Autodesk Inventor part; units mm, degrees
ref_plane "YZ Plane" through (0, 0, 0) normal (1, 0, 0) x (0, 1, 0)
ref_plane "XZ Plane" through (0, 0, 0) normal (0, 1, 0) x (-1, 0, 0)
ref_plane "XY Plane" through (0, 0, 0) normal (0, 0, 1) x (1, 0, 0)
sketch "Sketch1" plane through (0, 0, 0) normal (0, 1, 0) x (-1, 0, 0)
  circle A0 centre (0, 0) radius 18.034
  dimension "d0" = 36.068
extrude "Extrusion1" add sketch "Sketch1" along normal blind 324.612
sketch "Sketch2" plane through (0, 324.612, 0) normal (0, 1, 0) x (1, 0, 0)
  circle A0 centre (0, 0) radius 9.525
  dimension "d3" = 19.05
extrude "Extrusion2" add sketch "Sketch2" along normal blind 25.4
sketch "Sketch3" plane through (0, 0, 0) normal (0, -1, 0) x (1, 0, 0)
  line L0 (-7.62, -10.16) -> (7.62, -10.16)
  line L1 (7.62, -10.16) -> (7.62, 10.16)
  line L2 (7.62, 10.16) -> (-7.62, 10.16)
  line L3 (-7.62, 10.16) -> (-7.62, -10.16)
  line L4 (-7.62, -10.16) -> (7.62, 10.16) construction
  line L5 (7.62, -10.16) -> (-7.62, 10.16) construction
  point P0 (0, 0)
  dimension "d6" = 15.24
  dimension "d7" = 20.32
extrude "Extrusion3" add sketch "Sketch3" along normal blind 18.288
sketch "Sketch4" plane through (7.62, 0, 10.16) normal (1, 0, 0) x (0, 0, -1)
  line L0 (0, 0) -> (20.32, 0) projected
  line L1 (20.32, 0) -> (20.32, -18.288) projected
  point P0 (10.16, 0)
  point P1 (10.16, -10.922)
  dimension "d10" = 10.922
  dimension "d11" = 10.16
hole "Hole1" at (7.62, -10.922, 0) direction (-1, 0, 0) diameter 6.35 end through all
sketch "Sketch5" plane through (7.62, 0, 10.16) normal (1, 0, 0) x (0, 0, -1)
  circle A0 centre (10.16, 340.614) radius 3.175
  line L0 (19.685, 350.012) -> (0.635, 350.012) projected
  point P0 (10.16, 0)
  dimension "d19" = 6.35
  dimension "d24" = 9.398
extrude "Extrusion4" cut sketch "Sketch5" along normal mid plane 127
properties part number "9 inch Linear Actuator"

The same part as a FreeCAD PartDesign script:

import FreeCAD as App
import Part
import Sketcher

V = App.Vector
Q = App.Units.Quantity


def add_polygon(sketch, points):
    """Adds a closed chain of lines whose ends are joined by coincident constraints."""
    first, n = sketch.GeometryCount, len(points)
    for a, b in zip(points, points[1:] + points[:1]):
        sketch.addGeometry(Part.LineSegment(App.Vector(*a, 0), App.Vector(*b, 0)), False)
    for i in range(n):
        sketch.addConstraint(Sketcher.Constraint("Coincident", first + i, 2, first + (i + 1) % n, 1))

doc = App.newDocument("Part")
params = doc.addObject("Spreadsheet::Sheet", "Params")
for row, (alias, value) in enumerate([
    ("sketch1_diameter", "1.42 in"),
    ("pad1_length", "12.78 in"),
    ("sketch2_diameter", "0.75 in"),
    ("pad2_length", "1 in"),
    ("sketch3_width", "0.6 in"),
    ("sketch3_height", "0.8 in"),
    ("pad3_length", "0.72 in"),
    ("sketch4_diameter", "0.25 in"),
    ("hole_diameter", "0.25 in"),
    ("sketch5_diameter", "0.25 in"),
    ("pocket1_length", "5 in"),
], start=1):
    params.set(f"A{row}", alias)
    params.set(f"B{row}", "=" + value)
    params.setAlias(f"B{row}", alias)

body = doc.addObject("PartDesign::Body", "Body")

sketch1 = body.newObject("Sketcher::SketchObject", "Sketch")
sketch1.AttachmentSupport = (doc.getObject("XZ_Plane"), [""])
sketch1.MapMode = "FlatFace"
sketch1.addGeometry(Part.Circle(V(0, 0, 0), V(0, 0, 1), 18), False)
sketch1.addConstraint(Sketcher.Constraint("Coincident", 0, 3, -1, 1))
sketch1.addConstraint(Sketcher.Constraint("Diameter", 0, Q("1.42 in")))
sketch1.setExpression("Constraints[1]", "Params.sketch1_diameter")
pad1 = body.newObject("PartDesign::Pad", "Pad")
pad1.Profile = sketch1
pad1.setExpression("Length", "Params.pad1_length")
pad1.Reversed = True

sketch2 = body.newObject("Sketcher::SketchObject", "Sketch001")
sketch2.AttachmentSupport = (doc.getObject("XZ_Plane"), [""])
sketch2.MapMode = "FlatFace"
sketch2.AttachmentOffset = App.Placement(V(0, 0, -12.78 * 25.4), App.Rotation())
sketch2.addGeometry(Part.Circle(V(0, 0, 0), V(0, 0, 1), 10), False)
sketch2.addConstraint(Sketcher.Constraint("Coincident", 0, 3, -1, 1))
sketch2.addConstraint(Sketcher.Constraint("Diameter", 0, Q("0.75 in")))
sketch2.setExpression("Constraints[1]", "Params.sketch2_diameter")
pad2 = body.newObject("PartDesign::Pad", "Pad001")
pad2.Profile = sketch2
pad2.setExpression("Length", "Params.pad2_length")
pad2.Reversed = True

sketch3 = body.newObject("Sketcher::SketchObject", "Sketch002")
sketch3.AttachmentSupport = (doc.getObject("XZ_Plane"), [""])
sketch3.MapMode = "FlatFace"
add_polygon(sketch3, [(-8, 10), (-8, -10), (8, -10), (8, 10)])
sketch3.addConstraint(Sketcher.Constraint("Vertical", 0))
sketch3.addConstraint(Sketcher.Constraint("Horizontal", 1))
sketch3.addConstraint(Sketcher.Constraint("Vertical", 2))
sketch3.addConstraint(Sketcher.Constraint("Horizontal", 3))
sketch3.addConstraint(Sketcher.Constraint("Symmetric", 0, 2, 2, 2, -1, 1))
sketch3.addConstraint(Sketcher.Constraint("DistanceX", 1, 1, 1, 2, Q("0.6 in")))
sketch3.addConstraint(Sketcher.Constraint("DistanceY", 0, 2, 0, 1, Q("0.8 in")))
sketch3.setExpression("Constraints[9]", "Params.sketch3_width")
sketch3.setExpression("Constraints[10]", "Params.sketch3_height")
pad3 = body.newObject("PartDesign::Pad", "Pad002")
pad3.Profile = sketch3
pad3.setExpression("Length", "Params.pad3_length")

sketch4 = body.newObject("Sketcher::SketchObject", "Sketch003")
sketch4.AttachmentSupport = (doc.getObject("YZ_Plane"), [""])
sketch4.MapMode = "FlatFace"
sketch4.AttachmentOffset = App.Placement(V(0, 0, 0.3 * 25.4), App.Rotation())
sketch4.addGeometry(Part.Circle(V(-10.9, 0, 0), V(0, 0, 1), 3.2), False)
sketch4.addConstraint(Sketcher.Constraint("PointOnObject", 0, 3, -1))
sketch4.addConstraint(Sketcher.Constraint("Diameter", 0, Q("0.25 in")))
sketch4.addConstraint(Sketcher.Constraint("DistanceX", 0, 3, -1, 1, Q("0.43 in")))
sketch4.setExpression("Constraints[1]", "Params.sketch4_diameter")
doc.recompute()
hole = body.newObject("PartDesign::Hole", "Hole")
hole.Profile = sketch4
hole.ThreadType = "None"
hole.setExpression("Diameter", "Params.hole_diameter")
hole.DepthType = "ThroughAll"

sketch5 = body.newObject("Sketcher::SketchObject", "Sketch004")
sketch5.AttachmentSupport = (doc.getObject("YZ_Plane"), [""])
sketch5.MapMode = "FlatFace"
sketch5.AttachmentOffset = App.Placement(V(0, 0, 0.3 * 25.4), App.Rotation())
sketch5.addGeometry(Part.Circle(V(340.6, 0, 0), V(0, 0, 1), 3.2), False)
sketch5.addConstraint(Sketcher.Constraint("PointOnObject", 0, 3, -1))
sketch5.addConstraint(Sketcher.Constraint("Diameter", 0, Q("0.25 in")))
sketch5.addConstraint(Sketcher.Constraint("DistanceX", -1, 1, 0, 3, Q("13.41 in")))
sketch5.setExpression("Constraints[1]", "Params.sketch5_diameter")
pocket1 = body.newObject("PartDesign::Pocket", "Pocket")
pocket1.Profile = sketch5
pocket1.setExpression("Length", "Params.pocket1_length")
pocket1.Midplane = True

doc.recompute()
